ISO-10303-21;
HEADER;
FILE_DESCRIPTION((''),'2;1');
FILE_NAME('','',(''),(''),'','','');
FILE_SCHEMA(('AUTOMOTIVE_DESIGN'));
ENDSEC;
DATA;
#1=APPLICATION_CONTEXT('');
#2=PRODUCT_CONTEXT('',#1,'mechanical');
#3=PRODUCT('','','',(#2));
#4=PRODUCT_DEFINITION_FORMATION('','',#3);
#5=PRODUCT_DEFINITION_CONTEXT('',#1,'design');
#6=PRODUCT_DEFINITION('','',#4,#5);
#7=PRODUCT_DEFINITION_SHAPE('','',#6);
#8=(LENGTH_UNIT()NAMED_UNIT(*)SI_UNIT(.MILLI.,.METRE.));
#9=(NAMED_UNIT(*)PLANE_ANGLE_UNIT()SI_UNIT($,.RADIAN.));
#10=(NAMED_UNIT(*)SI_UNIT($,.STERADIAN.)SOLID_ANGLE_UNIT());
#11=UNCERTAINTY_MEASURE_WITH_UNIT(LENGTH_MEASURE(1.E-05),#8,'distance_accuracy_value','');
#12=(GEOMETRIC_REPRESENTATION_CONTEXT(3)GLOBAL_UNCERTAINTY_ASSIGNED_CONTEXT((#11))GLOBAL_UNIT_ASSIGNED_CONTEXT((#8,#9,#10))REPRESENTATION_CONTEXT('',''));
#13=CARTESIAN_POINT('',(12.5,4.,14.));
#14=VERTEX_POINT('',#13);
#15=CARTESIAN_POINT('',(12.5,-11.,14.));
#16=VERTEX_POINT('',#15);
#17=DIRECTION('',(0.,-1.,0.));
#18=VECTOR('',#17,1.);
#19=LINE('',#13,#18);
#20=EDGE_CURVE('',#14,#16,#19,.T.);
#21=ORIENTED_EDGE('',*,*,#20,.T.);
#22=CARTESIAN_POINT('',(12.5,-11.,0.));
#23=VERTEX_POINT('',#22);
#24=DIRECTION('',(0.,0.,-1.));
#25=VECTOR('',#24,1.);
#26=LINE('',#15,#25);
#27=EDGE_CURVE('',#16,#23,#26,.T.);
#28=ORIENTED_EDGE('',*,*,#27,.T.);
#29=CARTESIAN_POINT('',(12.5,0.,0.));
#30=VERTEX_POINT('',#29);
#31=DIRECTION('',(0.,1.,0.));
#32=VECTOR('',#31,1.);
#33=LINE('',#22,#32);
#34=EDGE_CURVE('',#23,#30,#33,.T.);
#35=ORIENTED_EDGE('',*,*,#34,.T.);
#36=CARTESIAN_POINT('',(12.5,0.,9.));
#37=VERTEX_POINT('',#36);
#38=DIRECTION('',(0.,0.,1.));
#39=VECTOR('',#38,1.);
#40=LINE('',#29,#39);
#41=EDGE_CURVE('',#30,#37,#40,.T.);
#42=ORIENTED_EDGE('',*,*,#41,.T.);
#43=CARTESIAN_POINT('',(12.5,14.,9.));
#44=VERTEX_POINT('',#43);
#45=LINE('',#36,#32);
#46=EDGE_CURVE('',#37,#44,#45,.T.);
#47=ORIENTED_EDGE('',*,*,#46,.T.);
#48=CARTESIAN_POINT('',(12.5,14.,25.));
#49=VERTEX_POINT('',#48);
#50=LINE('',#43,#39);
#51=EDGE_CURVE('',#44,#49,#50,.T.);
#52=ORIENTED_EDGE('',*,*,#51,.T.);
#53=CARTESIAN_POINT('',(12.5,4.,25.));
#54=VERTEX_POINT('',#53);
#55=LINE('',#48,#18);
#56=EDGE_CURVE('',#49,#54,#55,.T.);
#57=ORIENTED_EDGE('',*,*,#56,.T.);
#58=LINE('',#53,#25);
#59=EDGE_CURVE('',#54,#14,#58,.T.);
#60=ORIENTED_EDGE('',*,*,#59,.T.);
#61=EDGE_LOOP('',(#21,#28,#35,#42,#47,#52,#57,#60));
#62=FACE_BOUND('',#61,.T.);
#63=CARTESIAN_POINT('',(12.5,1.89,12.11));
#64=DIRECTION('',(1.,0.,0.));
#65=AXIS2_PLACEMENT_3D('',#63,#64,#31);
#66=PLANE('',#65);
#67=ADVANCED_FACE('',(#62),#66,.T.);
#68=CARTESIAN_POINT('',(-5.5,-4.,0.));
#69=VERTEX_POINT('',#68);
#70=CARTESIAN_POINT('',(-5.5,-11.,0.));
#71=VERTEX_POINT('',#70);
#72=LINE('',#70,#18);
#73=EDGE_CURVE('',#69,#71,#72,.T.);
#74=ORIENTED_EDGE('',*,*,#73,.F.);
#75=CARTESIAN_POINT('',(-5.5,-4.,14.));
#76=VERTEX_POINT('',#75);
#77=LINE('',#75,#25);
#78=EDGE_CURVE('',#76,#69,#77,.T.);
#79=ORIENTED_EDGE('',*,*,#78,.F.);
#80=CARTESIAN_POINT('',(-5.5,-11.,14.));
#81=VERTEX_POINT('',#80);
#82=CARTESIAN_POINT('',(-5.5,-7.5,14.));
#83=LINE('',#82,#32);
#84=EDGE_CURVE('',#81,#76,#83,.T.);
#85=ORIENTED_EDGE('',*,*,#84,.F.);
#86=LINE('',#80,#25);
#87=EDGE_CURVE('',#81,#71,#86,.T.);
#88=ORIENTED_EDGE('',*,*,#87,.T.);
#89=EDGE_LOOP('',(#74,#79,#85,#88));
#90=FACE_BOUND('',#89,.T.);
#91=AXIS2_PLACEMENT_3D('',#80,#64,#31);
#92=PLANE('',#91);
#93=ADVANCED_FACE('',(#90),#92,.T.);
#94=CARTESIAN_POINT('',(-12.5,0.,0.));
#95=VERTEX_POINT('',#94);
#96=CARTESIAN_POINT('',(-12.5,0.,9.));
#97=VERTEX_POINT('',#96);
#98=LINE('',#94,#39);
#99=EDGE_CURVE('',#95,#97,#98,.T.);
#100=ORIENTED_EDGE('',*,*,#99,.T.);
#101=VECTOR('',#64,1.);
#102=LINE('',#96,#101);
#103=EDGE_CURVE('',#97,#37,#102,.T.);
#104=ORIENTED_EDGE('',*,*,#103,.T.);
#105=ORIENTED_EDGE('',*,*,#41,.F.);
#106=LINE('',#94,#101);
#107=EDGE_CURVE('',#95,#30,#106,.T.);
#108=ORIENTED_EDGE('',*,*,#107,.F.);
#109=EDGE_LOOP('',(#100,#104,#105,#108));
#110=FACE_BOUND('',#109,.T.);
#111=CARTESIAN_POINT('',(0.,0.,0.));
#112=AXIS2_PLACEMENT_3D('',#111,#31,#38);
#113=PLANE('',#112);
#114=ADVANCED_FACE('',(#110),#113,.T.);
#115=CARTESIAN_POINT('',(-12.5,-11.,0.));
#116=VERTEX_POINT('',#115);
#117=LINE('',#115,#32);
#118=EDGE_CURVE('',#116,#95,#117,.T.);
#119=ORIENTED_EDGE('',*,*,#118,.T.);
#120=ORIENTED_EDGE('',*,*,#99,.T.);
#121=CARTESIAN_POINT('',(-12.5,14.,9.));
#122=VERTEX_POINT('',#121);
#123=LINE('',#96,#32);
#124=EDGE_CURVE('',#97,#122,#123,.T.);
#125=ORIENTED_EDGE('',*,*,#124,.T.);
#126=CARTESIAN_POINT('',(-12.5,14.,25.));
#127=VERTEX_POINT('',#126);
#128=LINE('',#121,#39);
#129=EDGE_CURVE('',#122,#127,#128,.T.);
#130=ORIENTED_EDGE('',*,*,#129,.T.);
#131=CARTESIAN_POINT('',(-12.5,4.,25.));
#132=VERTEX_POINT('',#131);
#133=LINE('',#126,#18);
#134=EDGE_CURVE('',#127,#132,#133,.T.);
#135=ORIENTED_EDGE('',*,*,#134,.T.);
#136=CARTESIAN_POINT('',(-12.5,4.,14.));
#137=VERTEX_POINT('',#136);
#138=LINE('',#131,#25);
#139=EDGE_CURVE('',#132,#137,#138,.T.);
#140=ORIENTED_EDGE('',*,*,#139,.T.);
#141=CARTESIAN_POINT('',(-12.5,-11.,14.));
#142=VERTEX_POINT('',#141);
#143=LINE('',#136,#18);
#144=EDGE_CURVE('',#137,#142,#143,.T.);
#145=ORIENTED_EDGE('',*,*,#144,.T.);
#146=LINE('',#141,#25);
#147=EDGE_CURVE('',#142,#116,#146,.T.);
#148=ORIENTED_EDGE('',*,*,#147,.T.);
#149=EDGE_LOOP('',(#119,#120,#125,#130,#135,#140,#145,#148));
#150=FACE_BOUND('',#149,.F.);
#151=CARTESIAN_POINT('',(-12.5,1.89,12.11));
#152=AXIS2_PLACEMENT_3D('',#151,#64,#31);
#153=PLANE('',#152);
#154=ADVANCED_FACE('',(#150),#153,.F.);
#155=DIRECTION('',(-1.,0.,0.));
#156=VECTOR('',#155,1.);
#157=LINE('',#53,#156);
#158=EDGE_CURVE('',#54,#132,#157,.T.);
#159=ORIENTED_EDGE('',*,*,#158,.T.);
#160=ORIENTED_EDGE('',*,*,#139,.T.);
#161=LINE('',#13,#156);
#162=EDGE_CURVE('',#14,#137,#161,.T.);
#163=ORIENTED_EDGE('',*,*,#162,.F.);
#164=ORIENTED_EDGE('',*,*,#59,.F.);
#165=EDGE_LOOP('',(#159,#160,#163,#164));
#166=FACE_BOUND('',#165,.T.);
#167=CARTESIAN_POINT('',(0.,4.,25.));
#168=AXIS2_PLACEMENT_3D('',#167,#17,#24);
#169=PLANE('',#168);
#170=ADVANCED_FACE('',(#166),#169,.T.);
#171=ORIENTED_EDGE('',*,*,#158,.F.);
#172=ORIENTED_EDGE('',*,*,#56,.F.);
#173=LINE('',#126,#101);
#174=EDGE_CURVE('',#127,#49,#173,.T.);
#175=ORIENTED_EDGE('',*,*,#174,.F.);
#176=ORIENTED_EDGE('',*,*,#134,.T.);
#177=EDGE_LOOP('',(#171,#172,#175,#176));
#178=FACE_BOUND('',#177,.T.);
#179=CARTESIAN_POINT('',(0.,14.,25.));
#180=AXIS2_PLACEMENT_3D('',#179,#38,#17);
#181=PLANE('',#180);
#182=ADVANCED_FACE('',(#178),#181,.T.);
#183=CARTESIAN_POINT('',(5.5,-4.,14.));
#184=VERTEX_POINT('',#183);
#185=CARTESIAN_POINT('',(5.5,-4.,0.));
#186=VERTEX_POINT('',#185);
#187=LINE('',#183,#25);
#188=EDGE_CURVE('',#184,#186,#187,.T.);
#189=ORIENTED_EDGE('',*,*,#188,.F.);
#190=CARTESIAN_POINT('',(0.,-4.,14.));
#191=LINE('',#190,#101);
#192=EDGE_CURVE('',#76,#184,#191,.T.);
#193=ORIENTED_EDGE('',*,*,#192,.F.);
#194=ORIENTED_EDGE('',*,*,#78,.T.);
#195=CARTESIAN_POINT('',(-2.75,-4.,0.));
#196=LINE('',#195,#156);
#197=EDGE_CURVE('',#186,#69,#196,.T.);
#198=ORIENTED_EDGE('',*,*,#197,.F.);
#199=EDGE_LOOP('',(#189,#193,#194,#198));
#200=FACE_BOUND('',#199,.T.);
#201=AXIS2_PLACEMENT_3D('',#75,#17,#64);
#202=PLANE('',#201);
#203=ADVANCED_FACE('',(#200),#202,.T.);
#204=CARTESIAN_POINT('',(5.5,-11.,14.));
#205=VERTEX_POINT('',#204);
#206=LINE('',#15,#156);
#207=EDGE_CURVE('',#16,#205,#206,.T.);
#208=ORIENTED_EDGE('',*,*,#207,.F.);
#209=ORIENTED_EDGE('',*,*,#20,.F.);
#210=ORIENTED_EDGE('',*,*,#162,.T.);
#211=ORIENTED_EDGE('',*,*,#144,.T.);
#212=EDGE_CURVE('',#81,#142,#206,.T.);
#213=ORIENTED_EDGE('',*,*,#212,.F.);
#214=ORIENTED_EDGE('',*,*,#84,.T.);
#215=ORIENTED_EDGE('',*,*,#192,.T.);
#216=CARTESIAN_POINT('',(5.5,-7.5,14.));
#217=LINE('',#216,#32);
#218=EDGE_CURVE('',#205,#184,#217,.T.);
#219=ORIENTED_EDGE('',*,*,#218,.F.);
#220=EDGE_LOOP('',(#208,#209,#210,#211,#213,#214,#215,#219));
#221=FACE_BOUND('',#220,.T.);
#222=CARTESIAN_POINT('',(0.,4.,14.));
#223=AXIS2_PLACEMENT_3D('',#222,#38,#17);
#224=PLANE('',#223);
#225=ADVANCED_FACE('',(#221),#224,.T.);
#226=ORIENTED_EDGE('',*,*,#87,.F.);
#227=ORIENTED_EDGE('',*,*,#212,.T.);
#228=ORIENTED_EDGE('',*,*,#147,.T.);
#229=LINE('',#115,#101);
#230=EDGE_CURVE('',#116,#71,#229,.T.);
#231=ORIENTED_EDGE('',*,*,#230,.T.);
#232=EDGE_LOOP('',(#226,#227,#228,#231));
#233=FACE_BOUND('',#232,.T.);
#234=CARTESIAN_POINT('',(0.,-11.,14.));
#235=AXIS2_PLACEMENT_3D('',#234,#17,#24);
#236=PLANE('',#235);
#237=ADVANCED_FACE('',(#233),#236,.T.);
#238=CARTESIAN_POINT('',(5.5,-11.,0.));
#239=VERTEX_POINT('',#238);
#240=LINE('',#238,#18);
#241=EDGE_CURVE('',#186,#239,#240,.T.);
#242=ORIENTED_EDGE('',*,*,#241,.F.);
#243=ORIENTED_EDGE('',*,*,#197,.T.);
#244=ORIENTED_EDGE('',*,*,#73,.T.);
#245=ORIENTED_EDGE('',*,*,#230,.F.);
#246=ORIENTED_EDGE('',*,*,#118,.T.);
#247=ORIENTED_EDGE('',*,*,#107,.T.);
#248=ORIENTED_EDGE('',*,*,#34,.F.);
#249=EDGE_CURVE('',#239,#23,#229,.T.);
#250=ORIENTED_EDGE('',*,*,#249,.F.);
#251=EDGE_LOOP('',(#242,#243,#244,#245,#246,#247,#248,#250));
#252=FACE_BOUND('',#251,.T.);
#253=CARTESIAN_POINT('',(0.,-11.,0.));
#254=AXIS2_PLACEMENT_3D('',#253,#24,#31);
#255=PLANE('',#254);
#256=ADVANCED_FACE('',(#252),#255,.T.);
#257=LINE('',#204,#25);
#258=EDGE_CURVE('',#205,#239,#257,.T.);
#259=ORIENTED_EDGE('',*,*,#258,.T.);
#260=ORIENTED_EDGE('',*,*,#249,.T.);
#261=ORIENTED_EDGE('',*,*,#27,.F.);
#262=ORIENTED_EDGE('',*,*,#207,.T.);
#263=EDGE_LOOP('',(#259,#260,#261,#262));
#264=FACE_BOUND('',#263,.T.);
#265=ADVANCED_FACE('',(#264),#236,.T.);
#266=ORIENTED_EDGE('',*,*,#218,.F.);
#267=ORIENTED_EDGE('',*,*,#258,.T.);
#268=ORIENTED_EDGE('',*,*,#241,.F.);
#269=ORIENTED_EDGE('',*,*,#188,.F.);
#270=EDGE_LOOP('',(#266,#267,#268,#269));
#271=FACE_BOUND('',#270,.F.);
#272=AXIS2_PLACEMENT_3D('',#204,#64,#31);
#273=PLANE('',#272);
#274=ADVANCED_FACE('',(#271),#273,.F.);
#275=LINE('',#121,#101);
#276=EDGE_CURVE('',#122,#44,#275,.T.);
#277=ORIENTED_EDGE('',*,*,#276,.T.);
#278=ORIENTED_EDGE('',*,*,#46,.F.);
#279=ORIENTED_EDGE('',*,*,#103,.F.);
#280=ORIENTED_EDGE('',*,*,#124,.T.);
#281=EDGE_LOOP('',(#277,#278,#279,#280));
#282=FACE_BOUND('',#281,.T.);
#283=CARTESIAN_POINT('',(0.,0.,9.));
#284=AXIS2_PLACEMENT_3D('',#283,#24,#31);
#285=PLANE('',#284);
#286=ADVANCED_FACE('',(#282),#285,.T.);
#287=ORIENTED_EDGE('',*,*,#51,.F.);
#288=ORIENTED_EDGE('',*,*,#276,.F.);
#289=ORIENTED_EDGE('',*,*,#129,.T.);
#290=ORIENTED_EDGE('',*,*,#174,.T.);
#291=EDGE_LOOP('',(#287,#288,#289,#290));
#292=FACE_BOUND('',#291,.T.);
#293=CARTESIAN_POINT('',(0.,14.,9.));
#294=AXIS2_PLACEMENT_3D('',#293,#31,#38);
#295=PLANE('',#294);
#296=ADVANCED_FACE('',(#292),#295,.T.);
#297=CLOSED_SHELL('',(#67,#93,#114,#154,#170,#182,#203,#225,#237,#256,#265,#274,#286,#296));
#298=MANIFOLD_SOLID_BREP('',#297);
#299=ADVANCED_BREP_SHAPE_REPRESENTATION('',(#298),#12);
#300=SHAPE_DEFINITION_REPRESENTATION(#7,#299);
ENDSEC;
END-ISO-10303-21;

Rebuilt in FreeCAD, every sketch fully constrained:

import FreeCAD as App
import Part
import Sketcher

V = App.Vector

doc = App.newDocument("Part")
body = doc.addObject("PartDesign::Body", "Body")

# Sketch on YZ plane
sketch1 = body.newObject("Sketcher::SketchObject", "Sketch")
sketch1.AttachmentSupport = (doc.getObject("YZ_Plane"), [""])
sketch1.MapMode = "FlatFace"
sketch1.addGeometry([
    Part.LineSegment(V(-11, 14, 0), V(-11, 0, 0)),  # 0
    Part.LineSegment(V(-11, 0, 0), V(0, 0, 0)),  # 1
    Part.LineSegment(V(0, 0, 0), V(0, 9, 0)),  # 2
    Part.LineSegment(V(0, 9, 0), V(14, 9, 0)),  # 3
    Part.LineSegment(V(14, 9, 0), V(14, 25, 0)),  # 4
    Part.LineSegment(V(14, 25, 0), V(4, 25, 0)),  # 5
    Part.LineSegment(V(4, 25, 0), V(4, 14, 0)),  # 6
    Part.LineSegment(V(4, 14, 0), V(-11, 14, 0)),  # 7
], False)
sketch1.addConstraint([
    Sketcher.Constraint("Coincident", 0, 2, 1, 1),
    Sketcher.Constraint("Coincident", 1, 2, 2, 1),
    Sketcher.Constraint("Coincident", 2, 2, 3, 1),
    Sketcher.Constraint("Coincident", 3, 2, 4, 1),
    Sketcher.Constraint("Coincident", 4, 2, 5, 1),
    Sketcher.Constraint("Coincident", 5, 2, 6, 1),
    Sketcher.Constraint("Coincident", 6, 2, 7, 1),
    Sketcher.Constraint("Coincident", 7, 2, 0, 1),
    Sketcher.Constraint("Vertical", 0),
    Sketcher.Constraint("Horizontal", 1),
    Sketcher.Constraint("Vertical", 2),
    Sketcher.Constraint("Horizontal", 3),
    Sketcher.Constraint("Vertical", 4),
    Sketcher.Constraint("Horizontal", 5),
    Sketcher.Constraint("Vertical", 6),
    Sketcher.Constraint("Horizontal", 7),
    Sketcher.Constraint("Coincident", 1, 2, -1, 1),
    Sketcher.Constraint("Equal", 3, 0),
    Sketcher.Constraint("Equal", 1, 6),
    Sketcher.Constraint("DistanceX", 1, 1, 1, 2, 11.0),
    Sketcher.Constraint("DistanceX", 3, 1, 3, 2, 14.0),
    Sketcher.Constraint("DistanceX", 5, 2, 5, 1, 10.0),
    Sketcher.Constraint("DistanceY", 2, 1, 2, 2, 9.0),
])
pad1 = body.newObject("PartDesign::Pad", "Pad")
pad1.Profile = sketch1
pad1.Length = 25
pad1.Midplane = True

# Sketch on XY plane
sketch2 = body.newObject("Sketcher::SketchObject", "Sketch001")
sketch2.AttachmentSupport = (doc.getObject("XY_Plane"), [""])
sketch2.MapMode = "FlatFace"
sketch2.AttachmentOffset = App.Placement(V(0, 0, 14), App.Rotation())
sketch2.addGeometry([
    Part.LineSegment(V(-6, -4, 0), V(-6, -11, 0)),
    Part.LineSegment(V(-6, -11, 0), V(6, -11, 0)),
    Part.LineSegment(V(6, -11, 0), V(6, -4, 0)),
    Part.LineSegment(V(6, -4, 0), V(-6, -4, 0)),
], False)
sketch2.addConstraint([
    Sketcher.Constraint("Coincident", 0, 2, 1, 1),
    Sketcher.Constraint("Coincident", 1, 2, 2, 1),
    Sketcher.Constraint("Coincident", 2, 2, 3, 1),
    Sketcher.Constraint("Coincident", 3, 2, 0, 1),
    Sketcher.Constraint("Vertical", 0),
    Sketcher.Constraint("Horizontal", 1),
    Sketcher.Constraint("Vertical", 2),
    Sketcher.Constraint("Horizontal", 3),
    Sketcher.Constraint("DistanceX", 1, 1, 1, 2, 11.0),
    Sketcher.Constraint("DistanceY", 0, 2, 0, 1, 7.0),
    Sketcher.Constraint("DistanceY", 0, 2, -1, 1, 11.0),
    Sketcher.Constraint("DistanceX", 0, 2, -1, 1, 5.5),
])
pocket1 = body.newObject("PartDesign::Pocket", "Pocket")
pocket1.Profile = sketch2
pocket1.Type = "ThroughAll"

doc.recompute()
